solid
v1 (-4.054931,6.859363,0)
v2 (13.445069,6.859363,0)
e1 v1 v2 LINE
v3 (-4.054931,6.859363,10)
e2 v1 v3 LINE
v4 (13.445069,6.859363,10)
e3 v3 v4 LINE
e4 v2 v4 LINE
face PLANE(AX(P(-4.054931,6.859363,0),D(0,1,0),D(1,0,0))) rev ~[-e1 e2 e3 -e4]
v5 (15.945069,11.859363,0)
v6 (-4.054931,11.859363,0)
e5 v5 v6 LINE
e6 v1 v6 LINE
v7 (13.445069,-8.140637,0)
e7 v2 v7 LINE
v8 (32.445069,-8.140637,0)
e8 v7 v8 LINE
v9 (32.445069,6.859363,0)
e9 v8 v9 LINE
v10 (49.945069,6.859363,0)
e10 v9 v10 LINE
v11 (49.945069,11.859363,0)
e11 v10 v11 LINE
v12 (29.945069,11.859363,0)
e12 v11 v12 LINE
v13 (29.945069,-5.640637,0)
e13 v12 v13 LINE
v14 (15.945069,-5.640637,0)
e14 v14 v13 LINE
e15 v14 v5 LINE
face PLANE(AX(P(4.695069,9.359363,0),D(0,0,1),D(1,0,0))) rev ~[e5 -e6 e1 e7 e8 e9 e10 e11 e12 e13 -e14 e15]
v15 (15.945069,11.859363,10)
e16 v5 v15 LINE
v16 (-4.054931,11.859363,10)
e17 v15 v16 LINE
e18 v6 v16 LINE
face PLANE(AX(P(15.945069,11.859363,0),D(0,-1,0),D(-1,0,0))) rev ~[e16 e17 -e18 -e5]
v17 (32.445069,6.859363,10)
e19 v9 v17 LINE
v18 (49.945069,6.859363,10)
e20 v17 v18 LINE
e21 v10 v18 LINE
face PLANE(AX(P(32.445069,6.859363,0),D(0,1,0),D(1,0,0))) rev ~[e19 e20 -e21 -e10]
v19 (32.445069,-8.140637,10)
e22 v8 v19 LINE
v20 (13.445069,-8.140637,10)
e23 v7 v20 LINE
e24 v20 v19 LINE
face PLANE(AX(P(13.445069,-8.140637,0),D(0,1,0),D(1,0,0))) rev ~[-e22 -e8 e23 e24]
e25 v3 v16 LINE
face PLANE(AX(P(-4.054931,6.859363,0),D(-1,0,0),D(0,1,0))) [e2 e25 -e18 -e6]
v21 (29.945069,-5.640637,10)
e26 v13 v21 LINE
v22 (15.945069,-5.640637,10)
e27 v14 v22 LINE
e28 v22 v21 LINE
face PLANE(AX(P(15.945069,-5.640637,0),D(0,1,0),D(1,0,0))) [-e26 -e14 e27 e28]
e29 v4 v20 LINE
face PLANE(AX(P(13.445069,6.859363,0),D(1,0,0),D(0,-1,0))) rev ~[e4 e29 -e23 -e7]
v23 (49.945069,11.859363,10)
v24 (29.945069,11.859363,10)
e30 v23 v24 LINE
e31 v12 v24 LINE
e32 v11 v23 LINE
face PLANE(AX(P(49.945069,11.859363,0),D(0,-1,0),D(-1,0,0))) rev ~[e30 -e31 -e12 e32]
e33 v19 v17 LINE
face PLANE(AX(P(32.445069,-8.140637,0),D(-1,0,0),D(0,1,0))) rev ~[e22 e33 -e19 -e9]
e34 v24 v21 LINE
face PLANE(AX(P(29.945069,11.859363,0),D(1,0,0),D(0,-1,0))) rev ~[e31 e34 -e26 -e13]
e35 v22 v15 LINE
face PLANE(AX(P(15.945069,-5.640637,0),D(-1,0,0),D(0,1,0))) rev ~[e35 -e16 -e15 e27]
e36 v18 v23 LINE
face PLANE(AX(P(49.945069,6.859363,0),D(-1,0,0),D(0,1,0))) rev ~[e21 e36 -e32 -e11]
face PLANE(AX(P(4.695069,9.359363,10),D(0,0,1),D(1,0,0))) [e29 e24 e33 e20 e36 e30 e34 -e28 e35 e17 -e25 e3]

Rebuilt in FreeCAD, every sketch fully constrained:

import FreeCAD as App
import Part
import Sketcher

V = App.Vector
Q = App.Units.Quantity


def add_polygon(sketch, points):
    """Adds a closed chain of lines whose ends are joined by coincident constraints."""
    first, n = sketch.GeometryCount, len(points)
    for a, b in zip(points, points[1:] + points[:1]):
        sketch.addGeometry(Part.LineSegment(App.Vector(*a, 0), App.Vector(*b, 0)), False)
    for i in range(n):
        sketch.addConstraint(Sketcher.Constraint("Coincident", first + i, 2, first + (i + 1) % n, 1))

doc = App.newDocument("Part")
body = doc.addObject("PartDesign::Body", "Body")

sketch1 = body.newObject("Sketcher::SketchObject", "Sketch")
sketch1.AttachmentSupport = (doc.getObject("XY_Plane"), [""])
sketch1.MapMode = "FlatFace"
add_polygon(sketch1, [(-4, 12), (-4, 7), (13, 7), (13, -8), (32, -8), (32, 7), (50, 7), (50, 12), (30, 12), (30, -6), (16, -6), (16, 12)])
sketch1.addConstraint(Sketcher.Constraint("Vertical", 0))
sketch1.addConstraint(Sketcher.Constraint("Horizontal", 1))
sketch1.addConstraint(Sketcher.Constraint("Vertical", 2))
sketch1.addConstraint(Sketcher.Constraint("Horizontal", 3))
sketch1.addConstraint(Sketcher.Constraint("Vertical", 4))
sketch1.addConstraint(Sketcher.Constraint("Horizontal", 5))
sketch1.addConstraint(Sketcher.Constraint("Vertical", 6))
sketch1.addConstraint(Sketcher.Constraint("Horizontal", 7))
sketch1.addConstraint(Sketcher.Constraint("Vertical", 8))
sketch1.addConstraint(Sketcher.Constraint("Horizontal", 9))
sketch1.addConstraint(Sketcher.Constraint("Vertical", 10))
sketch1.addConstraint(Sketcher.Constraint("Horizontal", 11))
sketch1.addConstraint(Sketcher.Constraint("Horizontal", 1, 2, 4, 2))
sketch1.addConstraint(Sketcher.Constraint("Horizontal", 7, 2, 10, 2))
sketch1.addConstraint(Sketcher.Constraint("Equal", 1, 5))
sketch1.addConstraint(Sketcher.Constraint("Equal", 7, 11))
sketch1.addConstraint(Sketcher.Constraint("Equal", 5, 8))
sketch1.addConstraint(Sketcher.Constraint("DistanceX", 3, 1, 3, 2, Q("19 mm")))
sketch1.addConstraint(Sketcher.Constraint("DistanceX", 7, 2, 7, 1, Q("20 mm")))
sketch1.addConstraint(Sketcher.Constraint("DistanceX", 9, 2, 9, 1, Q("14 mm")))
sketch1.addConstraint(Sketcher.Constraint("DistanceY", 0, 2, 0, 1, Q("5 mm")))
sketch1.addConstraint(Sketcher.Constraint("DistanceY", 2, 2, 2, 1, Q("15 mm")))
sketch1.addConstraint(Sketcher.Constraint("DistanceX", 0, 2, -1, 1, Q("4.054931 mm")))
sketch1.addConstraint(Sketcher.Constraint("DistanceY", -1, 1, 0, 2, Q("6.859363 mm")))
pad1 = body.newObject("PartDesign::Pad", "Pad")
pad1.Profile = sketch1
pad1.Length = 10

doc.recompute()
